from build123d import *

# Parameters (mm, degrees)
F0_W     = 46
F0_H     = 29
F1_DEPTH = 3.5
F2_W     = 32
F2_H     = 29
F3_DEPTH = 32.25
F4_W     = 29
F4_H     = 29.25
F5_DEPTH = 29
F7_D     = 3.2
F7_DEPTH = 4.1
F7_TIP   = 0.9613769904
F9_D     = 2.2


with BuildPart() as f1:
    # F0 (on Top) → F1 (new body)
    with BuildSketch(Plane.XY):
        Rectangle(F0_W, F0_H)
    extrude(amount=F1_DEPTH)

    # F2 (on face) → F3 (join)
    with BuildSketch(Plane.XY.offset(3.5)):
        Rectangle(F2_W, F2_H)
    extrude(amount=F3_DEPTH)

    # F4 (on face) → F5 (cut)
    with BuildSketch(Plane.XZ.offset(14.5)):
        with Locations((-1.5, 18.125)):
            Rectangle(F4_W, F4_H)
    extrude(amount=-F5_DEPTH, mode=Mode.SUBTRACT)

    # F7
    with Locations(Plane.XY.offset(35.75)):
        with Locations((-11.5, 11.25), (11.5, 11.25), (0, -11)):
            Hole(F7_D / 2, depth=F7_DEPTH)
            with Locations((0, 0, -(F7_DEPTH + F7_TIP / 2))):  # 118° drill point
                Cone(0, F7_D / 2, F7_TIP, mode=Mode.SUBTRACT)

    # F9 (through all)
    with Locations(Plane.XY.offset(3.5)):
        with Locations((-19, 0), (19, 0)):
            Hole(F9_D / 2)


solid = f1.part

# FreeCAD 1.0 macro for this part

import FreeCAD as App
import Part
import Sketcher
from FreeCAD import Vector
Q = App.Units.Quantity


def add_polygon(sketch, points):
    """Adds a closed chain of lines whose ends are joined by coincident constraints."""
    first, n = sketch.GeometryCount, len(points)
    for a, b in zip(points, points[1:] + points[:1]):
        sketch.addGeometry(Part.LineSegment(App.Vector(*a, 0), App.Vector(*b, 0)), False)
    for i in range(n):
        sketch.addConstraint(Sketcher.Constraint("Coincident", first + i, 2, first + (i + 1) % n, 1))

doc = App.newDocument("Part")
body = doc.addObject("PartDesign::Body", "Body")

# Sketch on XY plane
sketch1 = doc.addObject("Sketcher::SketchObject", "Sketch")
body.addObject(sketch1)
sketch1.AttachmentSupport = (doc.XY_Plane, [""])
sketch1.MapMode = "FlatFace"
add_polygon(sketch1, [(-23, 14), (-23, -14), (23, -14), (23, 14)])  # lines 0-3
sketch1.addConstraint([
    Sketcher.Constraint("Vertical", 0),
    Sketcher.Constraint("Horizontal", 1),
    Sketcher.Constraint("Vertical", 2),
    Sketcher.Constraint("Horizontal", 3),
    Sketcher.Constraint("Symmetric", 0, 2, 2, 2, -1, 1),
    Sketcher.Constraint("DistanceX", 1, 1, 1, 2, Q("46 mm")),
    Sketcher.Constraint("DistanceY", 0, 2, 0, 1, Q("29 mm")),
])
pad1 = doc.addObject("PartDesign::Pad", "Pad")
body.addObject(pad1)
pad1.Profile = sketch1
pad1.Length = 3.5

# Sketch on XY plane
sketch2 = doc.addObject("Sketcher::SketchObject", "Sketch001")
body.addObject(sketch2)
sketch2.AttachmentSupport = (doc.XY_Plane, [""])
sketch2.MapMode = "FlatFace"
sketch2.AttachmentOffset = App.Placement(Vector(0, 0, 3.5), App.Rotation())
add_polygon(sketch2, [(-16, 14), (-16, -14), (16, -14), (16, 14)])  # lines 0-3
sketch2.addConstraint([
    Sketcher.Constraint("Vertical", 0),
    Sketcher.Constraint("Horizontal", 1),
    Sketcher.Constraint("Vertical", 2),
    Sketcher.Constraint("Horizontal", 3),
    Sketcher.Constraint("Symmetric", 0, 2, 2, 2, -1, 1),
    Sketcher.Constraint("DistanceX", 1, 1, 1, 2, Q("32 mm")),
    Sketcher.Constraint("DistanceY", 0, 2, 0, 1, Q("29 mm")),
])
pad2 = doc.addObject("PartDesign::Pad", "Pad001")
body.addObject(pad2)
pad2.Profile = sketch2
pad2.Length = 32.25

# Sketch on XZ plane
sketch3 = doc.addObject("Sketcher::SketchObject", "Sketch002")
body.addObject(sketch3)
sketch3.AttachmentSupport = (doc.XZ_Plane, [""])
sketch3.MapMode = "FlatFace"
sketch3.AttachmentOffset = App.Placement(Vector(0, 0, 14.5), App.Rotation())
add_polygon(sketch3, [(-16, 33), (-16, 4), (13, 4), (13, 33)])  # lines 0-3
sketch3.addConstraint([
    Sketcher.Constraint("Vertical", 0),
    Sketcher.Constraint("Horizontal", 1),
    Sketcher.Constraint("Vertical", 2),
    Sketcher.Constraint("Horizontal", 3),
    Sketcher.Constraint("DistanceX", 1, 1, 1, 2, Q("29 mm")),
    Sketcher.Constraint("DistanceX", 0, 2, -1, 1, Q("16 mm")),
    Sketcher.Constraint("DistanceY", 0, 2, 0, 1, Q("29.25 mm")),
    Sketcher.Constraint("DistanceY", -1, 1, 0, 2, Q("3.5 mm")),
])
pocket1 = doc.addObject("PartDesign::Pocket", "Pocket")
body.addObject(pocket1)
pocket1.Profile = sketch3
pocket1.Length = 29

# Sketch on XY plane
sketch4 = doc.addObject("Sketcher::SketchObject", "Sketch003")
body.addObject(sketch4)
sketch4.AttachmentSupport = (doc.XY_Plane, [""])
sketch4.MapMode = "FlatFace"
sketch4.AttachmentOffset = App.Placement(Vector(0, 0, 35.75), App.Rotation())
sketch4.addGeometry([
    Part.Circle(Vector(-11.5, 11.2, 0), Vector(0, 0, 1), 1.6),
    Part.Circle(Vector(11.5, 11.2, 0), Vector(0, 0, 1), 1.6),
    Part.Circle(Vector(0, -11, 0), Vector(0, 0, 1), 1.6),
], False)
sketch4.addConstraint([
    Sketcher.Constraint("Equal", 0, 1),
    Sketcher.Constraint("Equal", 1, 2),
    Sketcher.Constraint("Symmetric", 0, 3, 1, 3, -2),
    Sketcher.Constraint("PointOnObject", 2, 3, -2),
    Sketcher.Constraint("Diameter", 0, Q("3.2 mm")),
    Sketcher.Constraint("DistanceY", 2, 3, -1, 1, Q("11 mm")),
    Sketcher.Constraint("DistanceX", 0, 3, 1, 3, Q("23 mm")),
    Sketcher.Constraint("DistanceY", -1, 1, 0, 3, Q("11.25 mm")),
])
doc.recompute()
hole = doc.addObject("PartDesign::Hole", "Hole")
body.addObject(hole)
hole.Profile = sketch4
hole.ThreadType = "None"
hole.Diameter = 3.2
hole.DepthType = "Dimension"
hole.Depth = 4.1
hole.DrillPoint = "Angled"
hole.DrillPointAngle = 118

# Sketch on XY plane
sketch5 = doc.addObject("Sketcher::SketchObject", "Sketch004")
body.addObject(sketch5)
sketch5.AttachmentSupport = (doc.XY_Plane, [""])
sketch5.MapMode = "FlatFace"
sketch5.AttachmentOffset = App.Placement(Vector(0, 0, 3.5), App.Rotation())
sketch5.addGeometry([
    Part.Circle(Vector(-19, 0, 0), Vector(0, 0, 1), 1.1),
    Part.Circle(Vector(19, 0, 0), Vector(0, 0, 1), 1.1),
], False)
sketch5.addConstraint([
    Sketcher.Constraint("Equal", 0, 1),
    Sketcher.Constraint("Symmetric", 0, 3, 1, 3, -1, 1),
    Sketcher.Constraint("PointOnObject", 0, 3, -1),
    Sketcher.Constraint("Diameter", 0, Q("2.2 mm")),
    Sketcher.Constraint("DistanceX", 0, 3, -1, 1, Q("19 mm")),
])
doc.recompute()
hole2 = doc.addObject("PartDesign::Hole", "Hole001")
body.addObject(hole2)
hole2.Profile = sketch5
hole2.ThreadType = "None"
hole2.Diameter = 2.2
hole2.DepthType = "ThroughAll"

doc.recompute()
